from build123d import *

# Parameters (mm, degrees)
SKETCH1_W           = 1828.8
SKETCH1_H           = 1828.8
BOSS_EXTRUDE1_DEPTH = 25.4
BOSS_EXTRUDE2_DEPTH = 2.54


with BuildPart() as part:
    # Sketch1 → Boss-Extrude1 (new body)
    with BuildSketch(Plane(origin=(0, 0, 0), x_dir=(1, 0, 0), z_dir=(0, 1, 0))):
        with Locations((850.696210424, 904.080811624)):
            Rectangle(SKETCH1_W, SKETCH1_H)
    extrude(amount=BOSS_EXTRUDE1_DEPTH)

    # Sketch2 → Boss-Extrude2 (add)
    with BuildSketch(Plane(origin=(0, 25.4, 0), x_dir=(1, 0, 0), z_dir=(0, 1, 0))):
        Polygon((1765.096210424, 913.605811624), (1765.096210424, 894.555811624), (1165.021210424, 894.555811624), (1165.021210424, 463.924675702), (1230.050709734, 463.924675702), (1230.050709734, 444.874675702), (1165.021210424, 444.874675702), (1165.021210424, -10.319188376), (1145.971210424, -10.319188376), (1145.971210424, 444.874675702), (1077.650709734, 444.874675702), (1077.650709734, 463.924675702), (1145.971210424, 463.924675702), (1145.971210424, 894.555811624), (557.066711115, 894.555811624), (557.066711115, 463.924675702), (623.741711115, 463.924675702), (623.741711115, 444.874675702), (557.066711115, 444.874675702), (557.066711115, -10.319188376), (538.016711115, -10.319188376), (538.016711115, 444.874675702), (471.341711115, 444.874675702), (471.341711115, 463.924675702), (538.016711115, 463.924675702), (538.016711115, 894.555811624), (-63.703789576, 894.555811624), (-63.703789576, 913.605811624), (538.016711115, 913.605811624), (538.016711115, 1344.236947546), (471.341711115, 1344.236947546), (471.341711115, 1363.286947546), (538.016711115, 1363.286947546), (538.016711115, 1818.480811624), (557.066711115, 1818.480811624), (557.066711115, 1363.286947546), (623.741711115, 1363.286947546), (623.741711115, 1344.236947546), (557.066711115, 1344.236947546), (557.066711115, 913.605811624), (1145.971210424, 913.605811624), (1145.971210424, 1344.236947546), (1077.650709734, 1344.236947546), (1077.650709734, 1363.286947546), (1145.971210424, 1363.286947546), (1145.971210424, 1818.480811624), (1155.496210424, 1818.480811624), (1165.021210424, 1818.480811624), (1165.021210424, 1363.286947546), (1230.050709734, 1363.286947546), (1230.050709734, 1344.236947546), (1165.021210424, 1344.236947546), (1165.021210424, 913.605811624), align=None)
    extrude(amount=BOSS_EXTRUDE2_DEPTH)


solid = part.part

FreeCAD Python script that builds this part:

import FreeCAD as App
import Part
import Sketcher

V = App.Vector
Q = App.Units.Quantity

doc = App.newDocument("Part")
params = doc.addObject("Spreadsheet::Sheet", "Params")
for row, (alias, value) in enumerate([
    ("sketch1_width", "72 in"),
    ("pad1_length", "1 in"),
    ("sketch2_width", "0.75 in"),
    ("sketch2_width2", "23.625 in"),
    ("pad2_length", "0.1 in"),
], start=1):
    params.set(f"A{row}", alias)
    params.set(f"B{row}", "=" + value)
    params.setAlias(f"B{row}", alias)

body = doc.addObject("PartDesign::Body", "Body")

sketch1 = body.newObject("Sketcher::SketchObject", "Sketch")
sketch1.AttachmentSupport = (doc.getObject("XZ_Plane"), [""])
sketch1.MapMode = "FlatFace"
sketch1.addGeometry(Part.LineSegment(V(-64, -1818, 0), V(-64, 10, 0)), False)
sketch1.addGeometry(Part.LineSegment(V(-64, 10, 0), V(1765, 10, 0)), False)
sketch1.addGeometry(Part.LineSegment(V(1765, 10, 0), V(1765, -1818, 0)), False)
sketch1.addGeometry(Part.LineSegment(V(1765, -1818, 0), V(-64, -1818, 0)), False)
sketch1.addConstraint(Sketcher.Constraint("Coincident", 0, 2, 1, 1))
sketch1.addConstraint(Sketcher.Constraint("Coincident", 1, 2, 2, 1))
sketch1.addConstraint(Sketcher.Constraint("Coincident", 2, 2, 3, 1))
sketch1.addConstraint(Sketcher.Constraint("Coincident", 3, 2, 0, 1))
sketch1.addConstraint(Sketcher.Constraint("Vertical", 0))
sketch1.addConstraint(Sketcher.Constraint("Horizontal", 1))
sketch1.addConstraint(Sketcher.Constraint("Vertical", 2))
sketch1.addConstraint(Sketcher.Constraint("Horizontal", 3))
sketch1.addConstraint(Sketcher.Constraint("Equal", 3, 0))
sketch1.addConstraint(Sketcher.Constraint("DistanceX", 1, 1, 1, 2, Q("72 in")))
sketch1.addConstraint(Sketcher.Constraint("DistanceX", 0, 2, -1, 1, 63.70379))
sketch1.addConstraint(Sketcher.Constraint("DistanceY", -1, 1, 0, 2, 10.319188))
sketch1.setExpression("Constraints[9]", "Params.sketch1_width")
pad1 = body.newObject("PartDesign::Pad", "Pad")
pad1.Profile = sketch1
pad1.setExpression("Length", "Params.pad1_length")
pad1.Reversed = True

sketch2 = body.newObject("Sketcher::SketchObject", "Sketch001")
sketch2.AttachmentSupport = (doc.getObject("XZ_Plane"), [""])
sketch2.MapMode = "FlatFace"
sketch2.AttachmentOffset = App.Placement(V(0, 0, -1 * 25.4), App.Rotation())
sketch2.addGeometry(Part.LineSegment(V(1765, -895, 0), V(1765, -914, 0)), False)
sketch2.addGeometry(Part.LineSegment(V(1765, -914, 0), V(1165, -914, 0)), False)
sketch2.addGeometry(Part.LineSegment(V(1165, -914, 0), V(1165, -1344, 0)), False)
sketch2.addGeometry(Part.LineSegment(V(1165, -1344, 0), V(1230, -1344, 0)), False)
sketch2.addGeometry(Part.LineSegment(V(1230, -1344, 0), V(1230, -1363, 0)), False)
sketch2.addGeometry(Part.LineSegment(V(1230, -1363, 0), V(1165, -1363, 0)), False)
sketch2.addGeometry(Part.LineSegment(V(1165, -1363, 0), V(1165, -1818, 0)), False)
sketch2.addGeometry(Part.LineSegment(V(1165, -1818, 0), V(1146, -1818, 0)), False)
sketch2.addGeometry(Part.LineSegment(V(1146, -1818, 0), V(1146, -1363, 0)), False)
sketch2.addGeometry(Part.LineSegment(V(1146, -1363, 0), V(1078, -1363, 0)), False)
sketch2.addGeometry(Part.LineSegment(V(1078, -1363, 0), V(1078, -1344, 0)), False)
sketch2.addGeometry(Part.LineSegment(V(1078, -1344, 0), V(1146, -1344, 0)), False)
sketch2.addGeometry(Part.LineSegment(V(1146, -1344, 0), V(1146, -914, 0)), False)
sketch2.addGeometry(Part.LineSegment(V(1146, -914, 0), V(557, -914, 0)), False)
sketch2.addGeometry(Part.LineSegment(V(557, -914, 0), V(557, -1344, 0)), False)
sketch2.addGeometry(Part.LineSegment(V(557, -1344, 0), V(624, -1344, 0)), False)
sketch2.addGeometry(Part.LineSegment(V(624, -1344, 0), V(624, -1363, 0)), False)
sketch2.addGeometry(Part.LineSegment(V(624, -1363, 0), V(557, -1363, 0)), False)
sketch2.addGeometry(Part.LineSegment(V(557, -1363, 0), V(557, -1818, 0)), False)
sketch2.addGeometry(Part.LineSegment(V(557, -1818, 0), V(538, -1818, 0)), False)
sketch2.addGeometry(Part.LineSegment(V(538, -1818, 0), V(538, -1363, 0)), False)
sketch2.addGeometry(Part.LineSegment(V(538, -1363, 0), V(471, -1363, 0)), False)
sketch2.addGeometry(Part.LineSegment(V(471, -1363, 0), V(471, -1344, 0)), False)
sketch2.addGeometry(Part.LineSegment(V(471, -1344, 0), V(538, -1344, 0)), False)
sketch2.addGeometry(Part.LineSegment(V(538, -1344, 0), V(538, -914, 0)), False)
sketch2.addGeometry(Part.LineSegment(V(538, -914, 0), V(-64, -914, 0)), False)
sketch2.addGeometry(Part.LineSegment(V(-64, -914, 0), V(-64, -895, 0)), False)
sketch2.addGeometry(Part.LineSegment(V(-64, -895, 0), V(538, -895, 0)), False)
sketch2.addGeometry(Part.LineSegment(V(538, -895, 0), V(538, -464, 0)), False)
sketch2.addGeometry(Part.LineSegment(V(538, -464, 0), V(471, -464, 0)), False)
sketch2.addGeometry(Part.LineSegment(V(471, -464, 0), V(471, -445, 0)), False)
sketch2.addGeometry(Part.LineSegment(V(471, -445, 0), V(538, -445, 0)), False)
sketch2.addGeometry(Part.LineSegment(V(538, -445, 0), V(538, 10, 0)), False)
sketch2.addGeometry(Part.LineSegment(V(538, 10, 0), V(557, 10, 0)), False)
sketch2.addGeometry(Part.LineSegment(V(557, 10, 0), V(557, -445, 0)), False)
sketch2.addGeometry(Part.LineSegment(V(557, -445, 0), V(624, -445, 0)), False)
sketch2.addGeometry(Part.LineSegment(V(624, -445, 0), V(624, -464, 0)), False)
sketch2.addGeometry(Part.LineSegment(V(624, -464, 0), V(557, -464, 0)), False)
sketch2.addGeometry(Part.LineSegment(V(557, -464, 0), V(557, -895, 0)), False)
sketch2.addGeometry(Part.LineSegment(V(557, -895, 0), V(1146, -895, 0)), False)
sketch2.addGeometry(Part.LineSegment(V(1146, -895, 0), V(1146, -464, 0)), False)
sketch2.addGeometry(Part.LineSegment(V(1146, -464, 0), V(1078, -464, 0)), False)
sketch2.addGeometry(Part.LineSegment(V(1078, -464, 0), V(1078, -445, 0)), False)
sketch2.addGeometry(Part.LineSegment(V(1078, -445, 0), V(1146, -445, 0)), False)
sketch2.addGeometry(Part.LineSegment(V(1146, -445, 0), V(1146, 10, 0)), False)
sketch2.addGeometry(Part.LineSegment(V(1146, 10, 0), V(1165, 10, 0)), False)
sketch2.addGeometry(Part.LineSegment(V(1165, 10, 0), V(1165, -445, 0)), False)
sketch2.addGeometry(Part.LineSegment(V(1165, -445, 0), V(1230, -445, 0)), False)
sketch2.addGeometry(Part.LineSegment(V(1230, -445, 0), V(1230, -464, 0)), False)
sketch2.addGeometry(Part.LineSegment(V(1230, -464, 0), V(1165, -464, 0)), False)
sketch2.addGeometry(Part.LineSegment(V(1165, -464, 0), V(1165, -895, 0)), False)
sketch2.addGeometry(Part.LineSegment(V(1165, -895, 0), V(1765, -895, 0)), False)
sketch2.addConstraint(Sketcher.Constraint("Coincident", 0, 2, 1, 1))
sketch2.addConstraint(Sketcher.Constraint("Coincident", 1, 2, 2, 1))
sketch2.addConstraint(Sketcher.Constraint("Coincident", 2, 2, 3, 1))
sketch2.addConstraint(Sketcher.Constraint("Coincident", 3, 2, 4, 1))
sketch2.addConstraint(Sketcher.Constraint("Coincident", 4, 2, 5, 1))
sketch2.addConstraint(Sketcher.Constraint("Coincident", 5, 2, 6, 1))
sketch2.addConstraint(Sketcher.Constraint("Coincident", 6, 2, 7, 1))
sketch2.addConstraint(Sketcher.Constraint("Coincident", 7, 2, 8, 1))
sketch2.addConstraint(Sketcher.Constraint("Coincident", 8, 2, 9, 1))
sketch2.addConstraint(Sketcher.Constraint("Coincident", 9, 2, 10, 1))
sketch2.addConstraint(Sketcher.Constraint("Coincident", 10, 2, 11, 1))
sketch2.addConstraint(Sketcher.Constraint("Coincident", 11, 2, 12, 1))
sketch2.addConstraint(Sketcher.Constraint("Coincident", 12, 2, 13, 1))
sketch2.addConstraint(Sketcher.Constraint("Coincident", 13, 2, 14, 1))
sketch2.addConstraint(Sketcher.Constraint("Coincident", 14, 2, 15, 1))
sketch2.addConstraint(Sketcher.Constraint("Coincident", 15, 2, 16, 1))
sketch2.addConstraint(Sketcher.Constraint("Coincident", 16, 2, 17, 1))
sketch2.addConstraint(Sketcher.Constraint("Coincident", 17, 2, 18, 1))
sketch2.addConstraint(Sketcher.Constraint("Coincident", 18, 2, 19, 1))
sketch2.addConstraint(Sketcher.Constraint("Coincident", 19, 2, 20, 1))
sketch2.addConstraint(Sketcher.Constraint("Coincident", 20, 2, 21, 1))
sketch2.addConstraint(Sketcher.Constraint("Coincident", 21, 2, 22, 1))
sketch2.addConstraint(Sketcher.Constraint("Coincident", 22, 2, 23, 1))
sketch2.addConstraint(Sketcher.Constraint("Coincident", 23, 2, 24, 1))
sketch2.addConstraint(Sketcher.Constraint("Coincident", 24, 2, 25, 1))
sketch2.addConstraint(Sketcher.Constraint("Coincident", 25, 2, 26, 1))
sketch2.addConstraint(Sketcher.Constraint("Coincident", 26, 2, 27, 1))
sketch2.addConstraint(Sketcher.Constraint("Coincident", 27, 2, 28, 1))
sketch2.addConstraint(Sketcher.Constraint("Coincident", 28, 2, 29, 1))
sketch2.addConstraint(Sketcher.Constraint("Coincident", 29, 2, 30, 1))
sketch2.addConstraint(Sketcher.Constraint("Coincident", 30, 2, 31, 1))
sketch2.addConstraint(Sketcher.Constraint("Coincident", 31, 2, 32, 1))
sketch2.addConstraint(Sketcher.Constraint("Coincident", 32, 2, 33, 1))
sketch2.addConstraint(Sketcher.Constraint("Coincident", 33, 2, 34, 1))
sketch2.addConstraint(Sketcher.Constraint("Coincident", 34, 2, 35, 1))
sketch2.addConstraint(Sketcher.Constraint("Coincident", 35, 2, 36, 1))
sketch2.addConstraint(Sketcher.Constraint("Coincident", 36, 2, 37, 1))
sketch2.addConstraint(Sketcher.Constraint("Coincident", 37, 2, 38, 1))
sketch2.addConstraint(Sketcher.Constraint("Coincident", 38, 2, 39, 1))
sketch2.addConstraint(Sketcher.Constraint("Coincident", 39, 2, 40, 1))
sketch2.addConstraint(Sketcher.Constraint("Coincident", 40, 2, 41, 1))
sketch2.addConstraint(Sketcher.Constraint("Coincident", 41, 2, 42, 1))
sketch2.addConstraint(Sketcher.Constraint("Coincident", 42, 2, 43, 1))
sketch2.addConstraint(Sketcher.Constraint("Coincident", 43, 2, 44, 1))
sketch2.addConstraint(Sketcher.Constraint("Coincident", 44, 2, 45, 1))
sketch2.addConstraint(Sketcher.Constraint("Coincident", 45, 2, 46, 1))
sketch2.addConstraint(Sketcher.Constraint("Coincident", 46, 2, 47, 1))
sketch2.addConstraint(Sketcher.Constraint("Coincident", 47, 2, 48, 1))
sketch2.addConstraint(Sketcher.Constraint("Coincident", 48, 2, 49, 1))
sketch2.addConstraint(Sketcher.Constraint("Coincident", 49, 2, 50, 1))
sketch2.addConstraint(Sketcher.Constraint("Coincident", 50, 2, 51, 1))
sketch2.addConstraint(Sketcher.Constraint("Coincident", 51, 2, 0, 1))
sketch2.addConstraint(Sketcher.Constraint("Vertical", 0))
sketch2.addConstraint(Sketcher.Constraint("Horizontal", 1))
sketch2.addConstraint(Sketcher.Constraint("Vertical", 2))
sketch2.addConstraint(Sketcher.Constraint("Horizontal", 3))
sketch2.addConstraint(Sketcher.Constraint("Vertical", 4))
sketch2.addConstraint(Sketcher.Constraint("Horizontal", 5))
sketch2.addConstraint(Sketcher.Constraint("Vertical", 6))
sketch2.addConstraint(Sketcher.Constraint("Horizontal", 7))
sketch2.addConstraint(Sketcher.Constraint("Vertical", 8))
sketch2.addConstraint(Sketcher.Constraint("Horizontal", 9))
sketch2.addConstraint(Sketcher.Constraint("Vertical", 10))
sketch2.addConstraint(Sketcher.Constraint("Horizontal", 11))
sketch2.addConstraint(Sketcher.Constraint("Vertical", 12))
sketch2.addConstraint(Sketcher.Constraint("Horizontal", 13))
sketch2.addConstraint(Sketcher.Constraint("Vertical", 14))
sketch2.addConstraint(Sketcher.Constraint("Horizontal", 15))
sketch2.addConstraint(Sketcher.Constraint("Vertical", 16))
sketch2.addConstraint(Sketcher.Constraint("Horizontal", 17))
sketch2.addConstraint(Sketcher.Constraint("Vertical", 18))
sketch2.addConstraint(Sketcher.Constraint("Horizontal", 19))
sketch2.addConstraint(Sketcher.Constraint("Vertical", 20))
sketch2.addConstraint(Sketcher.Constraint("Horizontal", 21))
sketch2.addConstraint(Sketcher.Constraint("Vertical", 22))
sketch2.addConstraint(Sketcher.Constraint("Horizontal", 23))
sketch2.addConstraint(Sketcher.Constraint("Vertical", 24))
sketch2.addConstraint(Sketcher.Constraint("Horizontal", 25))
sketch2.addConstraint(Sketcher.Constraint("Vertical", 26))
sketch2.addConstraint(Sketcher.Constraint("Horizontal", 27))
sketch2.addConstraint(Sketcher.Constraint("Vertical", 28))
sketch2.addConstraint(Sketcher.Constraint("Horizontal", 29))
sketch2.addConstraint(Sketcher.Constraint("Vertical", 30))
sketch2.addConstraint(Sketcher.Constraint("Horizontal", 31))
sketch2.addConstraint(Sketcher.Constraint("Vertical", 32))
sketch2.addConstraint(Sketcher.Constraint("Horizontal", 33))
sketch2.addConstraint(Sketcher.Constraint("Vertical", 34))
sketch2.addConstraint(Sketcher.Constraint("Horizontal", 35))
sketch2.addConstraint(Sketcher.Constraint("Vertical", 36))
sketch2.addConstraint(Sketcher.Constraint("Horizontal", 37))
sketch2.addConstraint(Sketcher.Constraint("Vertical", 38))
sketch2.addConstraint(Sketcher.Constraint("Horizontal", 39))
sketch2.addConstraint(Sketcher.Constraint("Vertical", 40))
sketch2.addConstraint(Sketcher.Constraint("Horizontal", 41))
sketch2.addConstraint(Sketcher.Constraint("Vertical", 42))
sketch2.addConstraint(Sketcher.Constraint("Horizontal", 43))
sketch2.addConstraint(Sketcher.Constraint("Vertical", 44))
sketch2.addConstraint(Sketcher.Constraint("Horizontal", 45))
sketch2.addConstraint(Sketcher.Constraint("Vertical", 46))
sketch2.addConstraint(Sketcher.Constraint("Horizontal", 47))
sketch2.addConstraint(Sketcher.Constraint("Vertical", 48))
sketch2.addConstraint(Sketcher.Constraint("Horizontal", 49))
sketch2.addConstraint(Sketcher.Constraint("Vertical", 50))
sketch2.addConstraint(Sketcher.Constraint("Horizontal", 51))
sketch2.addConstraint(Sketcher.Constraint("Horizontal", 5, 2, 8, 2))
sketch2.addConstraint(Sketcher.Constraint("Horizontal", 3, 2, 10, 2))
sketch2.addConstraint(Sketcher.Constraint("Horizontal", 1, 2, 12, 2))
sketch2.addConstraint(Sketcher.Constraint("Horizontal", 11, 2, 14, 2))
sketch2.addConstraint(Sketcher.Constraint("Horizontal", 9, 2, 16, 2))
sketch2.addConstraint(Sketcher.Constraint("Horizontal", 7, 2, 18, 2))
sketch2.addConstraint(Sketcher.Constraint("Horizontal", 17, 2, 20, 2))
sketch2.addConstraint(Sketcher.Constraint("Horizontal", 15, 2, 22, 2))
sketch2.addConstraint(Sketcher.Constraint("Horizontal", 13, 2, 24, 2))
sketch2.addConstraint(Sketcher.Constraint("Horizontal", 31, 2, 34, 2))
sketch2.addConstraint(Sketcher.Constraint("Horizontal", 29, 2, 36, 2))
sketch2.addConstraint(Sketcher.Constraint("Horizontal", 27, 2, 38, 2))
sketch2.addConstraint(Sketcher.Constraint("Horizontal", 37, 2, 40, 2))
sketch2.addConstraint(Sketcher.Constraint("Horizontal", 35, 2, 42, 2))
sketch2.addConstraint(Sketcher.Constraint("Horizontal", 33, 2, 44, 2))
sketch2.addConstraint(Sketcher.Constraint("Horizontal", 43, 2, 46, 2))
sketch2.addConstraint(Sketcher.Constraint("Horizontal", 41, 2, 48, 2))
sketch2.addConstraint(Sketcher.Constraint("Horizontal", 39, 2, 50, 2))
sketch2.addConstraint(Sketcher.Constraint("Vertical", 2, 2, 5, 2))
sketch2.addConstraint(Sketcher.Constraint("Vertical", 8, 2, 11, 2))
sketch2.addConstraint(Sketcher.Constraint("Vertical", 14, 2, 17, 2))
sketch2.addConstraint(Sketcher.Constraint("Vertical", 20, 2, 23, 2))
sketch2.addConstraint(Sketcher.Constraint("Vertical", 24, 2, 27, 2))
sketch2.addConstraint(Sketcher.Constraint("Vertical", 22, 2, 29, 2))
sketch2.addConstraint(Sketcher.Constraint("Vertical", 28, 2, 31, 2))
sketch2.addConstraint(Sketcher.Constraint("Vertical", 18, 2, 33, 2))
sketch2.addConstraint(Sketcher.Constraint("Vertical", 16, 2, 35, 2))
sketch2.addConstraint(Sketcher.Constraint("Vertical", 34, 2, 37, 2))
sketch2.addConstraint(Sketcher.Constraint("Vertical", 12, 2, 39, 2))
sketch2.addConstraint(Sketcher.Constraint("Vertical", 10, 2, 41, 2))
sketch2.addConstraint(Sketcher.Constraint("Vertical", 40, 2, 43, 2))
sketch2.addConstraint(Sketcher.Constraint("Vertical", 6, 2, 45, 2))
sketch2.addConstraint(Sketcher.Constraint("Vertical", 4, 2, 47, 2))
sketch2.addConstraint(Sketcher.Constraint("Vertical", 46, 2, 49, 2))
sketch2.addConstraint(Sketcher.Constraint("Equal", 7, 19))
sketch2.addConstraint(Sketcher.Constraint("Equal", 17, 21))
sketch2.addConstraint(Sketcher.Constraint("Equal", 45, 0))
sketch2.addConstraint(Sketcher.Constraint("Equal", 0, 4))
sketch2.addConstraint(Sketcher.Constraint("Equal", 24, 28))
sketch2.addConstraint(Sketcher.Constraint("Equal", 26, 30))
sketch2.addConstraint(Sketcher.Constraint("Equal", 20, 32))
sketch2.addConstraint(Sketcher.Constraint("DistanceX", 9, 2, 4, 2, Q("6 in")))
sketch2.addConstraint(Sketcher.Constraint("DistanceX", 21, 2, 16, 2, Q("6 in")))
sketch2.addConstraint(Sketcher.Constraint("DistanceX", 7, 2, 7, 1, Q("0.75 in")))
sketch2.addConstraint(Sketcher.Constraint("DistanceX", 1, 2, 1, 1, Q("23.625 in")))
sketch2.addConstraint(Sketcher.Constraint("DistanceY", 6, 2, 1, 2, Q("35.625 in")))
sketch2.addConstraint(Sketcher.Constraint("DistanceX", 3, 1, 3, 2, 65.029499))
sketch2.addConstraint(Sketcher.Constraint("DistanceX", 13, 2, 13, 1, 588.904499))
sketch2.addConstraint(Sketcher.Constraint("DistanceX", 25, 2, 25, 1, 601.720501))
sketch2.addConstraint(Sketcher.Constraint("DistanceY", 2, 2, 2, 1, 430.631136))
sketch2.addConstraint(Sketcher.Constraint("DistanceX", -1, 1, 0, 2, 1765.09621))
sketch2.addConstraint(Sketcher.Constraint("DistanceY", 0, 2, -1, 1, 913.605812))
sketch2.setExpression("Constraints[147]", "Params.sketch2_width")
sketch2.setExpression("Constraints[148]", "Params.sketch2_width2")
pad2 = body.newObject("PartDesign::Pad", "Pad001")
pad2.Profile = sketch2
pad2.setExpression("Length", "Params.pad2_length")
pad2.Reversed = True

doc.recompute()
